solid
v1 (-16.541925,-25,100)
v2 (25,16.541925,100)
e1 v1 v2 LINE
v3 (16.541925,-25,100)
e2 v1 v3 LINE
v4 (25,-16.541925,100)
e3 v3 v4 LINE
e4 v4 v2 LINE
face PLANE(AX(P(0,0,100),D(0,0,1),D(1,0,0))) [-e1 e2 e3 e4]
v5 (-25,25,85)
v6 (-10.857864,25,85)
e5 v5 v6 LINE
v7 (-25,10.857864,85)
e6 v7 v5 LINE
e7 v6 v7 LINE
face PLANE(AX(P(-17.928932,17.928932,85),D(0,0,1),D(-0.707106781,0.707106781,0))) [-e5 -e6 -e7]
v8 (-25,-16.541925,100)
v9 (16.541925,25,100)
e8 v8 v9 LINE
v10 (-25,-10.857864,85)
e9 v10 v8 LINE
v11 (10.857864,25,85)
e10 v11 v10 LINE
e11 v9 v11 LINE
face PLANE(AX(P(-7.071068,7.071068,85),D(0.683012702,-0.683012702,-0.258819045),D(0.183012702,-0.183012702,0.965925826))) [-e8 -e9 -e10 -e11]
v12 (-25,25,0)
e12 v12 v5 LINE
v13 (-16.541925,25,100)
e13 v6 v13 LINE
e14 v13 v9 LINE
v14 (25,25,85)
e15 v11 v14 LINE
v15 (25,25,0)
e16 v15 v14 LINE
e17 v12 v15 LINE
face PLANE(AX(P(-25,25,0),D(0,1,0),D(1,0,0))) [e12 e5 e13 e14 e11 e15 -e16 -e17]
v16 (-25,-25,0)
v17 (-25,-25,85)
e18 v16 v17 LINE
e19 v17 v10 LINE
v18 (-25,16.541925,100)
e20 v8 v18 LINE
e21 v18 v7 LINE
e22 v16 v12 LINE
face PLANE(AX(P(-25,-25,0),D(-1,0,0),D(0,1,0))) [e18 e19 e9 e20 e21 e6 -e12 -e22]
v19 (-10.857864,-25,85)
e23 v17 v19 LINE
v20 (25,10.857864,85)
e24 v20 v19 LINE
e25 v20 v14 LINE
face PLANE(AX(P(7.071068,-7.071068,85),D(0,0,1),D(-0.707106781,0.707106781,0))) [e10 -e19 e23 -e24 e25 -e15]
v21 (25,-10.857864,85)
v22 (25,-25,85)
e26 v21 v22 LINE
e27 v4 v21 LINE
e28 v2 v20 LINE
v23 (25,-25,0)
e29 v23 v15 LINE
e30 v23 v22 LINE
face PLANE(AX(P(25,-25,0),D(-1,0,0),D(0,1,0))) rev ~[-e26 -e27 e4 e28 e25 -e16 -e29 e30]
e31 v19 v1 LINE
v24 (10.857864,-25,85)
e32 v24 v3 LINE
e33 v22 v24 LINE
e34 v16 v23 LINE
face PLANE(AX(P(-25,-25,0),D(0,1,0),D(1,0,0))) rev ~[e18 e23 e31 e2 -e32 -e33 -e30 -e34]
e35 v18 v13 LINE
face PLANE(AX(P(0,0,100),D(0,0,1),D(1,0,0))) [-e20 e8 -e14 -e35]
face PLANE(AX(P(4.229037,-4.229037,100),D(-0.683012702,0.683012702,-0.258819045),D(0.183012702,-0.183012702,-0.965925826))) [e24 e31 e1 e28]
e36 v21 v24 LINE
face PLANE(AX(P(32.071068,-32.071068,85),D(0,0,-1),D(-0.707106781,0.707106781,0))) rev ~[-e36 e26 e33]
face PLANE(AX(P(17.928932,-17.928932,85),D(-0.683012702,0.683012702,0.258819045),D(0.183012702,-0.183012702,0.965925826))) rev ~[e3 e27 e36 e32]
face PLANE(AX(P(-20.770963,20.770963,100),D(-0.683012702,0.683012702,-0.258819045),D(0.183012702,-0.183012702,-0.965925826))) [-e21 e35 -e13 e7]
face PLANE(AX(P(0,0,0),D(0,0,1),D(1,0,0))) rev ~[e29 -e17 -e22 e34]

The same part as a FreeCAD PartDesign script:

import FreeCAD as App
import Part
import Sketcher
Q = App.Units.Quantity


def add_polygon(sketch, points):
    """Adds a closed chain of lines whose ends are joined by coincident constraints."""
    first, n = sketch.GeometryCount, len(points)
    for a, b in zip(points, points[1:] + points[:1]):
        sketch.addGeometry(Part.LineSegment(App.Vector(*a, 0), App.Vector(*b, 0)), False)
    for i in range(n):
        sketch.addConstraint(Sketcher.Constraint("Coincident", first + i, 2, first + (i + 1) % n, 1))

doc = App.newDocument("Part")
body = doc.addObject("PartDesign::Body", "Body")

# Sketch on XY plane
sketch1 = doc.addObject("Sketcher::SketchObject", "Sketch")
body.addObject(sketch1)
sketch1.AttachmentSupport = (doc.XY_Plane, [""])
sketch1.MapMode = "FlatFace"
add_polygon(sketch1, [(-25, 25), (-25, -25), (25, -25), (25, 25)])  # lines 0-3
sketch1.addConstraint(Sketcher.Constraint("Vertical", 0))
sketch1.addConstraint(Sketcher.Constraint("Horizontal", 1))
sketch1.addConstraint(Sketcher.Constraint("Vertical", 2))
sketch1.addConstraint(Sketcher.Constraint("Horizontal", 3))
sketch1.addConstraint(Sketcher.Constraint("Symmetric", 0, 2, 2, 2, -1, 1))
sketch1.addConstraint(Sketcher.Constraint("Equal", 3, 0))
sketch1.addConstraint(Sketcher.Constraint("DistanceX", 1, 1, 1, 2, Q("50 mm")))
pad1 = doc.addObject("PartDesign::Pad", "Pad")
body.addObject(pad1)
pad1.Profile = sketch1
pad1.Length = 100

# Sketch on an angled plane
sketch2 = doc.addObject("Sketcher::SketchObject", "Sketch001")
body.addObject(sketch2)
sketch2.Placement = App.Placement(App.Vector(0, 0, 0), App.Rotation(App.Vector(-0.707106781, 0.707106781, 0), App.Vector(0, 0, 0.999999999), App.Vector(0.707106781, 0.707106781, 0), "ZXY"))
add_polygon(sketch2, [(10, 85), (5.980762, 100), (-5.980762, 100), (-10, 85)])  # lines 0-3
add_polygon(sketch2, [(45.355339, 85), (41.336101, 100), (29.374577, 100), (25.355339, 85)])  # lines 4-7
add_polygon(sketch2, [(-25.355339, 85), (-29.374577, 100), (-41.336101, 100), (-45.355339, 85)])  # lines 8-11
sketch2.addConstraint(Sketcher.Constraint("Horizontal", 1))
sketch2.addConstraint(Sketcher.Constraint("Horizontal", 3))
sketch2.addConstraint(Sketcher.Constraint("Horizontal", 5))
sketch2.addConstraint(Sketcher.Constraint("Horizontal", 7))
sketch2.addConstraint(Sketcher.Constraint("Horizontal", 9))
sketch2.addConstraint(Sketcher.Constraint("Horizontal", 11))
sketch2.addConstraint(Sketcher.Constraint("Symmetric", 5, 2, 8, 2, -2))
sketch2.addConstraint(Sketcher.Constraint("Symmetric", 7, 2, 10, 2, -2))
sketch2.addConstraint(Sketcher.Constraint("Parallel", 0, 4))
sketch2.addConstraint(Sketcher.Constraint("Parallel", 2, 6))
sketch2.addConstraint(Sketcher.Constraint("Parallel", 4, 8))
sketch2.addConstraint(Sketcher.Constraint("Parallel", 6, 10))
sketch2.addConstraint(Sketcher.Constraint("Horizontal", 1, 2, 4, 2))
sketch2.addConstraint(Sketcher.Constraint("Horizontal", 3, 2, 6, 2))
sketch2.addConstraint(Sketcher.Constraint("Equal", 1, 5))
sketch2.addConstraint(Sketcher.Constraint("Equal", 5, 9))
sketch2.addConstraint(Sketcher.Constraint("DistanceX", 3, 1, 3, 2, Q("20 mm")))
sketch2.addConstraint(Sketcher.Constraint("Angle", 0, Q("105 deg")))
sketch2.addConstraint(Sketcher.Constraint("DistanceY", -1, 1, 0, 2, Q("100 mm")))
sketch2.addConstraint(Sketcher.Constraint("DistanceX", 2, 2, -1, 1, Q("10 mm")))
sketch2.addConstraint(Sketcher.Constraint("DistanceY", -1, 1, 2, 2, Q("85 mm")))
sketch2.addConstraint(Sketcher.Constraint("DistanceX", -1, 1, 4, 2, Q("41.336101 mm")))
pocket1 = doc.addObject("PartDesign::Pocket", "Pocket")
body.addObject(pocket1)
pocket1.Profile = sketch2
pocket1.Length = 100
pocket1.Midplane = True

doc.recompute()
